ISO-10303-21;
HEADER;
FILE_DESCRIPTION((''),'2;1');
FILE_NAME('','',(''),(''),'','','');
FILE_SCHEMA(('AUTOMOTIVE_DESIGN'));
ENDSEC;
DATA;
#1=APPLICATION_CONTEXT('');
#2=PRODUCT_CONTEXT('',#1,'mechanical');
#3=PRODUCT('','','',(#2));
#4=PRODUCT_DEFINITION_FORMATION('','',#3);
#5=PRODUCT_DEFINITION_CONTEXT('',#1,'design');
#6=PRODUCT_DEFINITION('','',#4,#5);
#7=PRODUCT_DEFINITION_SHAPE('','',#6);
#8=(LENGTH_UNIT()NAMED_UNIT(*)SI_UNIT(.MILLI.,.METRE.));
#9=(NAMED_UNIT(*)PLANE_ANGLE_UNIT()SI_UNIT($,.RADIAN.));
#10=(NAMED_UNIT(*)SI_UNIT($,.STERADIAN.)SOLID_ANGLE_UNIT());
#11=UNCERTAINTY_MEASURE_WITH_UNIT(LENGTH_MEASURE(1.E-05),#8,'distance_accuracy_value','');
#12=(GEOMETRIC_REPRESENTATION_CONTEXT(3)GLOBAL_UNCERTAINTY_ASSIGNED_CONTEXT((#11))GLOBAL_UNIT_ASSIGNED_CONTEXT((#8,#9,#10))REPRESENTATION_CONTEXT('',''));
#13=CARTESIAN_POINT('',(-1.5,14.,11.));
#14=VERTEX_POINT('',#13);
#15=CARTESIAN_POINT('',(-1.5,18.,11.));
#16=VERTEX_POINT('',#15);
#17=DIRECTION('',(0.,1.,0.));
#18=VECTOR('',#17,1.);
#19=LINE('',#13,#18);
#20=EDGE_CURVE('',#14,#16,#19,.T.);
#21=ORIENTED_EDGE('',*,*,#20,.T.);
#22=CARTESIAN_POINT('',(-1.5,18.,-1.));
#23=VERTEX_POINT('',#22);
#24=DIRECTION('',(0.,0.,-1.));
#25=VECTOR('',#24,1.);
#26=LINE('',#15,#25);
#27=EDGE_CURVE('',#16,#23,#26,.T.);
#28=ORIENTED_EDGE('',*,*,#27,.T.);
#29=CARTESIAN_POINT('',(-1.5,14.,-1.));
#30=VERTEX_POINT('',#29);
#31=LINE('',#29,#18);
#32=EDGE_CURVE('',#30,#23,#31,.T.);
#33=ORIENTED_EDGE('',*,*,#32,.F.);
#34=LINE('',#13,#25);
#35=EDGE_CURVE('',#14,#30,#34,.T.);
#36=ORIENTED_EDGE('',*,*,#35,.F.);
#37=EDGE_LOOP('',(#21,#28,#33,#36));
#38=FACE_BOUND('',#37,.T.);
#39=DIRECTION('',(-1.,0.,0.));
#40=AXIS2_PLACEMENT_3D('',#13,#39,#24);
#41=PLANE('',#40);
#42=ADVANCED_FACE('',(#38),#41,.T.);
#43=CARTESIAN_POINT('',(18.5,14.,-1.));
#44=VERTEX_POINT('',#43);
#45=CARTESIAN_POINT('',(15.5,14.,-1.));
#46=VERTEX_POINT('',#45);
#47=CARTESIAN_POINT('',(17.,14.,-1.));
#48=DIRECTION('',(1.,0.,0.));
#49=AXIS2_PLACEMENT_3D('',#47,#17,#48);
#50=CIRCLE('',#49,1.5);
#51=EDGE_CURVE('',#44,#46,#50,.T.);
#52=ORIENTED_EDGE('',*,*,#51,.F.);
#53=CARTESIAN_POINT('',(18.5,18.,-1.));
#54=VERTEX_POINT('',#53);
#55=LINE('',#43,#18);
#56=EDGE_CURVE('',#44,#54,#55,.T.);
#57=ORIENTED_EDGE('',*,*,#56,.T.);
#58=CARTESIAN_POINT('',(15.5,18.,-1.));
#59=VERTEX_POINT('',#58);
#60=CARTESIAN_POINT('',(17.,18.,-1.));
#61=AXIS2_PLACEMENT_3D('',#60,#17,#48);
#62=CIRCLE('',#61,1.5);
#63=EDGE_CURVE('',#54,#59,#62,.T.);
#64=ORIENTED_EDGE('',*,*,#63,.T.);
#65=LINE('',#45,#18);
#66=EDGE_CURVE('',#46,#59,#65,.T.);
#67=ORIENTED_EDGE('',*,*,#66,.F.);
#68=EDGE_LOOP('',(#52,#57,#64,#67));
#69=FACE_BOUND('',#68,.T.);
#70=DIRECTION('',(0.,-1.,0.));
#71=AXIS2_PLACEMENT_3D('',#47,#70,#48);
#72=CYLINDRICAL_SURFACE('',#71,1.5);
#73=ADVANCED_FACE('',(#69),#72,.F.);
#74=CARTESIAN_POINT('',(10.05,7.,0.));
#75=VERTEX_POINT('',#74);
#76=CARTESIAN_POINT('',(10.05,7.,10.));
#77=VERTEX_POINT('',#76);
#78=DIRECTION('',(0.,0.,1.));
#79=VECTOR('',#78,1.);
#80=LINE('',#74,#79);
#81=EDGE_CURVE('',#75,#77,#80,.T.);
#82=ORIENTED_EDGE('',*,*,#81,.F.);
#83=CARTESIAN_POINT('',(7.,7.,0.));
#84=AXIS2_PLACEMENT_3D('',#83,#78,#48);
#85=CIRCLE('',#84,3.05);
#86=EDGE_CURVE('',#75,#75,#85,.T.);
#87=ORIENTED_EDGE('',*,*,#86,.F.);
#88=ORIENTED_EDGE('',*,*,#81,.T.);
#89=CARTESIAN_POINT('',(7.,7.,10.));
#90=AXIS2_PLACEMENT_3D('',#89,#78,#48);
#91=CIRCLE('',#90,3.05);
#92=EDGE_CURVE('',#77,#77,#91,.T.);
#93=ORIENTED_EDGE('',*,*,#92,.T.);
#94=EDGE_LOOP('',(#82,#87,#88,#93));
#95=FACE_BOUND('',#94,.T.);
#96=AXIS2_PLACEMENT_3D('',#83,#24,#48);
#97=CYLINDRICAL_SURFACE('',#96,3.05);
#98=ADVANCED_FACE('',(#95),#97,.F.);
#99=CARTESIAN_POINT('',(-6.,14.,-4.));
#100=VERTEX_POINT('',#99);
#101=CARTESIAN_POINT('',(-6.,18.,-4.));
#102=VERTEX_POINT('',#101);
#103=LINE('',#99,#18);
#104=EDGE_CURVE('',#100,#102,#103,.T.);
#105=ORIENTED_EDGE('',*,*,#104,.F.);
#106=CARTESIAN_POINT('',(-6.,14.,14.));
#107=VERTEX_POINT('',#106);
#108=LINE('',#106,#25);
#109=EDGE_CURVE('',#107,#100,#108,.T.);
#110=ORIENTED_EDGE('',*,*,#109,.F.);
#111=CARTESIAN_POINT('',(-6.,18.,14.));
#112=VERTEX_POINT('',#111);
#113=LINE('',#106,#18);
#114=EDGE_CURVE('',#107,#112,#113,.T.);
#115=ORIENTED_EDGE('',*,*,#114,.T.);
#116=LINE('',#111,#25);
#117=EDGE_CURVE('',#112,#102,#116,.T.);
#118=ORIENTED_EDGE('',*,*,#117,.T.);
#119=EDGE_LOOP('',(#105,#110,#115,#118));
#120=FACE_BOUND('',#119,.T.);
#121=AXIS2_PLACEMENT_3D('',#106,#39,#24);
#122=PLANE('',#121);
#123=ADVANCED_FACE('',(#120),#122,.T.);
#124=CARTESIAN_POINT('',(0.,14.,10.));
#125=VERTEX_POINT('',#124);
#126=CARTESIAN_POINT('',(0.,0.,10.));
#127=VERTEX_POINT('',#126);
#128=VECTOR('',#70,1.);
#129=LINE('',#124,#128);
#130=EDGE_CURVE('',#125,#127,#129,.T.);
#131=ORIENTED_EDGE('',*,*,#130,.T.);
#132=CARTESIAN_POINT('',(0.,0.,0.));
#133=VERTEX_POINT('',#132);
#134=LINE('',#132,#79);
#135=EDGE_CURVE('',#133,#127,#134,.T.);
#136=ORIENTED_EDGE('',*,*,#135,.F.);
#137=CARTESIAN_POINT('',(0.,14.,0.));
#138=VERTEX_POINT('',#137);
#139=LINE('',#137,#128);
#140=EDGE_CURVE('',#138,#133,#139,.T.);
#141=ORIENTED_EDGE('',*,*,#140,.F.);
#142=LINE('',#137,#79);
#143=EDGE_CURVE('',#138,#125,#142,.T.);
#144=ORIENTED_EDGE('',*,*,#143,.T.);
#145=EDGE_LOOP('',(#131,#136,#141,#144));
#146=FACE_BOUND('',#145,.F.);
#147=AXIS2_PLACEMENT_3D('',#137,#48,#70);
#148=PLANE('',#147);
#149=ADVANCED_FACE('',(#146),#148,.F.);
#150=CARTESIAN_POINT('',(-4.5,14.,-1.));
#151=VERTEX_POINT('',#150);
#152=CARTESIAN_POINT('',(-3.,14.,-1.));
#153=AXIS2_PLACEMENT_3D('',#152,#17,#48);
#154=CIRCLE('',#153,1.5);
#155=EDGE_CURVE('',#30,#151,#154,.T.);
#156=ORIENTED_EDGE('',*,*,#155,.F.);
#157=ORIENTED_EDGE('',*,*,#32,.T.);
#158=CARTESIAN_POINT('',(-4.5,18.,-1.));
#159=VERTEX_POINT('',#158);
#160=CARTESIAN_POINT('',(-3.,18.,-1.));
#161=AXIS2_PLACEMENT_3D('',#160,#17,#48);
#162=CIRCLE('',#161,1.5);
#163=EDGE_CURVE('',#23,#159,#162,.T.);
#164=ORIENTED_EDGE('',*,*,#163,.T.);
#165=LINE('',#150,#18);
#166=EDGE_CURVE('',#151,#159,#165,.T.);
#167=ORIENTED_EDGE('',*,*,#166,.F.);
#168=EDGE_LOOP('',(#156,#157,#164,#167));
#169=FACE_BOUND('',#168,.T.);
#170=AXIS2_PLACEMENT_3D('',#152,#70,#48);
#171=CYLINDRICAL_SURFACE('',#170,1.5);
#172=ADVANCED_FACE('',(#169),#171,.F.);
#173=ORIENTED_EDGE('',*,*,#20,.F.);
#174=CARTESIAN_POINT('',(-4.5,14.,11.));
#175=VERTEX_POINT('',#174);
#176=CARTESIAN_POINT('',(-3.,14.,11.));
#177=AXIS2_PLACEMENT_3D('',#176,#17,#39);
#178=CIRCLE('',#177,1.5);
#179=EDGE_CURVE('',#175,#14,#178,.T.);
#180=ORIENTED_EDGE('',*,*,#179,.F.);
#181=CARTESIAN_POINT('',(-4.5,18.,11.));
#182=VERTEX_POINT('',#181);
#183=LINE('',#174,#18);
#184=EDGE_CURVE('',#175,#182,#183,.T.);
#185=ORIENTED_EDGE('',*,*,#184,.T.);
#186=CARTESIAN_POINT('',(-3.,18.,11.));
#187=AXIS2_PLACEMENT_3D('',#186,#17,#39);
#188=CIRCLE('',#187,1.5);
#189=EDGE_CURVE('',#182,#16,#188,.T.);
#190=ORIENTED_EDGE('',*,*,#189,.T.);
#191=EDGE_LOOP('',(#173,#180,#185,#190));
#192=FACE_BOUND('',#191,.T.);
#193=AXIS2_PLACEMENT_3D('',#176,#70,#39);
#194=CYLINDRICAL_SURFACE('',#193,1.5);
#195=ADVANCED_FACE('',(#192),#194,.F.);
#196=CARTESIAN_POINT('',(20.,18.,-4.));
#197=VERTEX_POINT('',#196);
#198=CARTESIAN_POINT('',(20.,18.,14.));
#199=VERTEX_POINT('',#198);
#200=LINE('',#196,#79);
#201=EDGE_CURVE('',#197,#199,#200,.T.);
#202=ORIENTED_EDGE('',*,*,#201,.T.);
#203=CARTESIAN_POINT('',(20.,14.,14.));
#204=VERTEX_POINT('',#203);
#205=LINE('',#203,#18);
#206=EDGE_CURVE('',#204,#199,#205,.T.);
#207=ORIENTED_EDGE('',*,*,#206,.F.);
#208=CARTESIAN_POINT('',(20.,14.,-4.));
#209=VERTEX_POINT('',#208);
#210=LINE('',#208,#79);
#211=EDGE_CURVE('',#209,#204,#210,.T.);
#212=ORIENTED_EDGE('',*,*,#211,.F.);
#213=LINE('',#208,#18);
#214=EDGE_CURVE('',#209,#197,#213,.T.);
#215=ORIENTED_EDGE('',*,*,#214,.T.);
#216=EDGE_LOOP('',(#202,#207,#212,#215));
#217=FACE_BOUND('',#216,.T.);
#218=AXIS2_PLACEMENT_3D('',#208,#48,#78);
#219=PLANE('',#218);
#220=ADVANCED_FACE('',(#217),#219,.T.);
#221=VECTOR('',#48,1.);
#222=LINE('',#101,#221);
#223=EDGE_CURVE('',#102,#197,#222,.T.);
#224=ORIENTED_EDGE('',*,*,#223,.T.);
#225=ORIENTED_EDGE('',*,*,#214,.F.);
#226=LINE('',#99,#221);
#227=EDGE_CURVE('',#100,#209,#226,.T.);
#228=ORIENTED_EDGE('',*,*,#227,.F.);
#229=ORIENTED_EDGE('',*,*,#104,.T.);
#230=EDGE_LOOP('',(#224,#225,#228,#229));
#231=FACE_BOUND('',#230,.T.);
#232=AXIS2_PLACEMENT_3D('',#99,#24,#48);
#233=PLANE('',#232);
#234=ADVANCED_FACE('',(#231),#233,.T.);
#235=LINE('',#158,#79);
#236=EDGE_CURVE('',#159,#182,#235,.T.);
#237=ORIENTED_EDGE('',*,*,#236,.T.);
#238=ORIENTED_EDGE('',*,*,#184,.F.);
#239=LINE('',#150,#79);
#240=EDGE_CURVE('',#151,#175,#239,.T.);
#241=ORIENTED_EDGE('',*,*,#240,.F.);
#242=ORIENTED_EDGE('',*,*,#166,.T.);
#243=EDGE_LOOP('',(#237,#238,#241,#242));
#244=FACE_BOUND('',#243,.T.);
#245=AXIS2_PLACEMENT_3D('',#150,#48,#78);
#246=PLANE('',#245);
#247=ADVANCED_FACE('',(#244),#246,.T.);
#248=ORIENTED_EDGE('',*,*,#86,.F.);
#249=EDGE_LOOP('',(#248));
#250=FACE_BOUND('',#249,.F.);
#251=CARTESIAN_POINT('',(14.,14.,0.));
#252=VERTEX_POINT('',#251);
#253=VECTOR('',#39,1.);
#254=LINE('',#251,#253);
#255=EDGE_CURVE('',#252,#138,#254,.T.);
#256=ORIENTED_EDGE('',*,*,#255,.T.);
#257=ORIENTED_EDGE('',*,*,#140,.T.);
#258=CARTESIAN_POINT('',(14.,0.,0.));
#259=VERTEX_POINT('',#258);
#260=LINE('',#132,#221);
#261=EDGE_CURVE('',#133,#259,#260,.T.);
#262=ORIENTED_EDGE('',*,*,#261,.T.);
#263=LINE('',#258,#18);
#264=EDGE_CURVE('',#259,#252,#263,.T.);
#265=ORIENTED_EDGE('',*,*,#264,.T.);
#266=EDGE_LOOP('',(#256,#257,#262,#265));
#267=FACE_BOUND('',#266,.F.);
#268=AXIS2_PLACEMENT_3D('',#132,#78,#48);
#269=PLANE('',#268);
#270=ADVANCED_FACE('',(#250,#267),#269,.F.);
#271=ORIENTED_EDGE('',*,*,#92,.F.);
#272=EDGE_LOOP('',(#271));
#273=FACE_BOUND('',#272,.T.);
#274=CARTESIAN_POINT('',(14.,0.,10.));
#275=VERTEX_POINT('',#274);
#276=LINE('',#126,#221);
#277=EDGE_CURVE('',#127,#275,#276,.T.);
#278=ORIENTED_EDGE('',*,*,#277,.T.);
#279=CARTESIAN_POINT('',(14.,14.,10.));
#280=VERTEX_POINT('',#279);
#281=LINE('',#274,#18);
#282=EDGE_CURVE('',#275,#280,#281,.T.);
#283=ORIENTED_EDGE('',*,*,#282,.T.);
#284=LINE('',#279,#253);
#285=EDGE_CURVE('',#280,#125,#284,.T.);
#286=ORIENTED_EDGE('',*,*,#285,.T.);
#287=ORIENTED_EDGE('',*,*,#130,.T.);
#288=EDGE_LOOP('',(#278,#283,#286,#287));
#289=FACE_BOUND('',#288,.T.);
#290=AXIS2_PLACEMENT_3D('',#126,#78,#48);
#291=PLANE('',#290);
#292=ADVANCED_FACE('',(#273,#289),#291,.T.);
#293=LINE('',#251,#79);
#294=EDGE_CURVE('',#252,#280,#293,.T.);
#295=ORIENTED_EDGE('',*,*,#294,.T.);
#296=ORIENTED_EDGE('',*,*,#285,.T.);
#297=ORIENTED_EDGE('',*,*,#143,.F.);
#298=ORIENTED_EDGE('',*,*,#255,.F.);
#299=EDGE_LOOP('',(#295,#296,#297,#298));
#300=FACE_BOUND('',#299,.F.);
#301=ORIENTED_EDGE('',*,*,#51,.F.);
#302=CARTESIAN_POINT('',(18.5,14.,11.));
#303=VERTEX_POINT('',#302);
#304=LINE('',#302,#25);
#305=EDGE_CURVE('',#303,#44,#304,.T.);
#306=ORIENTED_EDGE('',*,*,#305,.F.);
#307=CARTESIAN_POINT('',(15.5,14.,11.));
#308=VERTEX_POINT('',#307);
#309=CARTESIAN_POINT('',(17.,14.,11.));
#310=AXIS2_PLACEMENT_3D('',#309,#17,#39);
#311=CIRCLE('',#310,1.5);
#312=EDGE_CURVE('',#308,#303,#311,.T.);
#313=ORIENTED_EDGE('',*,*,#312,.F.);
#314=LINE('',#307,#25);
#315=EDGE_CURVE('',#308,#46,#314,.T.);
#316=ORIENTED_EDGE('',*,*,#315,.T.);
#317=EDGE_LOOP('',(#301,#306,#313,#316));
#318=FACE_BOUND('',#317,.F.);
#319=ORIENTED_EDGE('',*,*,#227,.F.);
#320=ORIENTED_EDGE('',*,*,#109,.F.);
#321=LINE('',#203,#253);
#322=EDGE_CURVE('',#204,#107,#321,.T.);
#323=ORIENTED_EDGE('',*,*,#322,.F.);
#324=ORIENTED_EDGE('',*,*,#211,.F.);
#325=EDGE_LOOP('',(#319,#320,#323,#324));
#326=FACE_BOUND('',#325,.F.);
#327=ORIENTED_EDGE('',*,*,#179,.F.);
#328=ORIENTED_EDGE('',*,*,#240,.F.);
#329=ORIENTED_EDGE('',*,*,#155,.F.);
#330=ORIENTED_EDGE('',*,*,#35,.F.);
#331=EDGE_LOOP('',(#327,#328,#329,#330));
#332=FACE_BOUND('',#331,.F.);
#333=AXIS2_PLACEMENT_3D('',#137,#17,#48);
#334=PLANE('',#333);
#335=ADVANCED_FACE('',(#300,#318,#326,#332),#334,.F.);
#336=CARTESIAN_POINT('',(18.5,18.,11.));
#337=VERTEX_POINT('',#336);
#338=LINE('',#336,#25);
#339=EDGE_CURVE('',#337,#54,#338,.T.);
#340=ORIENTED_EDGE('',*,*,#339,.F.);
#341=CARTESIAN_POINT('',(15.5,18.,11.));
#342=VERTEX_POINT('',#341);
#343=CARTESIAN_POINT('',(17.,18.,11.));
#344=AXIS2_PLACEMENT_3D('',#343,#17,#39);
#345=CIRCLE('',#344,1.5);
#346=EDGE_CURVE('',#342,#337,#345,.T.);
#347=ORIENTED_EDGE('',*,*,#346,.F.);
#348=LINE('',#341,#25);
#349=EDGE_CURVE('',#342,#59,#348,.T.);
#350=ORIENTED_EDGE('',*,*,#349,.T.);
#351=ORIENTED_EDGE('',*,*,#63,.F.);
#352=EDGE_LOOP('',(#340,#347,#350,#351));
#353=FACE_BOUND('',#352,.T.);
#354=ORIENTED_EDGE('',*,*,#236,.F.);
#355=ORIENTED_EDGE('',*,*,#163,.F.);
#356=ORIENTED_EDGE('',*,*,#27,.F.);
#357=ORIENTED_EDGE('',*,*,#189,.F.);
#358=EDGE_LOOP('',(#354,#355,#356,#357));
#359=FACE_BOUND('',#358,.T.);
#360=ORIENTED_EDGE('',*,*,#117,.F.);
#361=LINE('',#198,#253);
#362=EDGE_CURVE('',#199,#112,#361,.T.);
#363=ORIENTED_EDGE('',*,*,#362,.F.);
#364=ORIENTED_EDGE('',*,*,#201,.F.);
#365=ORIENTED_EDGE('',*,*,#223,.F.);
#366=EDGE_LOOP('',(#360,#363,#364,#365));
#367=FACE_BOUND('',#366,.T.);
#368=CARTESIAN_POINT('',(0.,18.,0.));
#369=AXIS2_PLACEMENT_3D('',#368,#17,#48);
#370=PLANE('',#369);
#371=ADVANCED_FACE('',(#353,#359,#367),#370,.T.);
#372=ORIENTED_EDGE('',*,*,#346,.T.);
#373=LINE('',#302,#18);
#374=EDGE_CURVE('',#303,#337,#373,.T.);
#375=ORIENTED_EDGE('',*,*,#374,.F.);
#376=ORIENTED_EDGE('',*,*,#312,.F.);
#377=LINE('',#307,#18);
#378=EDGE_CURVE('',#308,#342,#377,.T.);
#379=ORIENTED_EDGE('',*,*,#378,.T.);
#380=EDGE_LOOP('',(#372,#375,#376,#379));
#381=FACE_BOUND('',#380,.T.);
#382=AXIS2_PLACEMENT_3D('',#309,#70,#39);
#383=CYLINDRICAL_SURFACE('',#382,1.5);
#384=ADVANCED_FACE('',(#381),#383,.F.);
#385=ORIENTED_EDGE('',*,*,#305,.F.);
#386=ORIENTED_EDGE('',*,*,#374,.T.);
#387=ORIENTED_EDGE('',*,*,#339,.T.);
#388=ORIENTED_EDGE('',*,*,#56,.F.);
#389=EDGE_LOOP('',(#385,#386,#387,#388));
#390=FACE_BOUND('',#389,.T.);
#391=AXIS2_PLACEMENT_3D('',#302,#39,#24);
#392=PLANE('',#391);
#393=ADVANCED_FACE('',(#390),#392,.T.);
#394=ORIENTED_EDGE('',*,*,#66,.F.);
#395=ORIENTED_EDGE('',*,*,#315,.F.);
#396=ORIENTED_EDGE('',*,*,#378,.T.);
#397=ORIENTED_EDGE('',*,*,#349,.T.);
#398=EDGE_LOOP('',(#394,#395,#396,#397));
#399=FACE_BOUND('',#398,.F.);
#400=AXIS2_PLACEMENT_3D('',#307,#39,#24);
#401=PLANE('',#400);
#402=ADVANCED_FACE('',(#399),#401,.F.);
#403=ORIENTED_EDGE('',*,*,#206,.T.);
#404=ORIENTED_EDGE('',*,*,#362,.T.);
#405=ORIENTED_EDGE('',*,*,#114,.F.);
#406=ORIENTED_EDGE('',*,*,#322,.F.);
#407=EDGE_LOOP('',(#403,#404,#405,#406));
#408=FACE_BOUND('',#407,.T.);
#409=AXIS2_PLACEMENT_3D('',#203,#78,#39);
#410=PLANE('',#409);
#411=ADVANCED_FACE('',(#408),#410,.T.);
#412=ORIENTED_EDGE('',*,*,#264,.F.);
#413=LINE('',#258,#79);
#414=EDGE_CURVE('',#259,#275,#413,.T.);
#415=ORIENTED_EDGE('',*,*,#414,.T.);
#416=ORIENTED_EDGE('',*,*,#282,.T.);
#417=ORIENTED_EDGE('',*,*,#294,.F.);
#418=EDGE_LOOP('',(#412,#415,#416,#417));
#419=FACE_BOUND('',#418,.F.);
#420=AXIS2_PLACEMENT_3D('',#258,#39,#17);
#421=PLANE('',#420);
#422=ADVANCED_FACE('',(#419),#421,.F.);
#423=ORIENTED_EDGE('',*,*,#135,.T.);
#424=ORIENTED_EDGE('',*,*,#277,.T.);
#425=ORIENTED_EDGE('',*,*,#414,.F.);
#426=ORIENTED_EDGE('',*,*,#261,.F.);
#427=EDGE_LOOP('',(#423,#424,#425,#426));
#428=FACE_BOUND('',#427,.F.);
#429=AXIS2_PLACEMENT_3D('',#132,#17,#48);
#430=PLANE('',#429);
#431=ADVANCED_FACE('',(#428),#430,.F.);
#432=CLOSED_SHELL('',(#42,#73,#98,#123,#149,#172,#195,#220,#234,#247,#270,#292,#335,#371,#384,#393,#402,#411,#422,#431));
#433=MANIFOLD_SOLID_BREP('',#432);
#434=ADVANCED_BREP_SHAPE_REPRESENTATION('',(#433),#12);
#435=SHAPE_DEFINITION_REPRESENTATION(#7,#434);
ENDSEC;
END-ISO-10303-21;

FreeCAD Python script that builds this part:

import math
import FreeCAD as App
import Part
import Sketcher
Q = App.Units.Quantity


def add_polygon(sketch, points):
    """Adds a closed chain of lines whose ends are joined by coincident constraints."""
    first, n = sketch.GeometryCount, len(points)
    for a, b in zip(points, points[1:] + points[:1]):
        sketch.addGeometry(Part.LineSegment(App.Vector(*a, 0), App.Vector(*b, 0)), False)
    for i in range(n):
        sketch.addConstraint(Sketcher.Constraint("Coincident", first + i, 2, first + (i + 1) % n, 1))

doc = App.newDocument("Part")
params = doc.addObject("Spreadsheet::Sheet", "Params")
for row, (alias, value) in enumerate([
    ("sketch1_diameter", "6.1 mm"),
    ("sketch1_width", "14 mm"),
    ("pad1_length", "10 mm"),
    ("sketch2_radius", "1.5 mm"),
    ("sketch2_width", "26 mm"),
    ("sketch2_height", "18 mm"),
    ("pad2_length", "4 mm"),
], start=1):
    params.set(f"A{row}", alias)
    params.set(f"B{row}", "=" + value)
    params.setAlias(f"B{row}", alias)

body = doc.addObject("PartDesign::Body", "Body")

# Sketch on XY plane
sketch1 = body.newObject("Sketcher::SketchObject", "Sketch")
sketch1.AttachmentSupport = (doc.getObject("XY_Plane"), [""])
sketch1.MapMode = "FlatFace"
add_polygon(sketch1, [(0, 14), (0, 0), (14, 0), (14, 14)])  # lines 0-3
sketch1.addGeometry(Part.Circle(App.Vector(7, 7, 0), App.Vector(0, 0, 1), 3), False)  # 4
sketch1.addConstraint([
    Sketcher.Constraint("Vertical", 0),
    Sketcher.Constraint("Horizontal", 1),
    Sketcher.Constraint("Vertical", 2),
    Sketcher.Constraint("Horizontal", 3),
    Sketcher.Constraint("Coincident", 0, 2, -1, 1),
    Sketcher.Constraint("Equal", 3, 0),
    Sketcher.Constraint("Diameter", 4, Q("6.1 mm")),
    Sketcher.Constraint("DistanceX", 1, 1, 1, 2, Q("14 mm")),
    Sketcher.Constraint("DistanceX", -1, 1, 4, 3, Q("7 mm")),
    Sketcher.Constraint("DistanceY", -1, 1, 4, 3, Q("7 mm")),
])
sketch1.setExpression("Constraints[10]", "Params.sketch1_diameter")
sketch1.setExpression("Constraints[11]", "Params.sketch1_width")
pad1 = body.newObject("PartDesign::Pad", "Pad")
pad1.Profile = sketch1
pad1.setExpression("Length", "Params.pad1_length")

# Sketch on XZ plane
sketch2 = body.newObject("Sketcher::SketchObject", "Sketch001")
sketch2.AttachmentSupport = (doc.getObject("XZ_Plane"), [""])
sketch2.MapMode = "FlatFace"
sketch2.AttachmentOffset = App.Placement(App.Vector(0, 0, -14), App.Rotation())
add_polygon(sketch2, [(20, -4), (-6, -4), (-6, 14), (20, 14)])  # lines 0-3
sketch2.addGeometry(Part.ArcOfCircle(Part.Circle(App.Vector(-3, -1, 0), App.Vector(0, 0, 1), 1.5), math.radians(180), math.radians(360)), False)  # 4
sketch2.addGeometry(Part.LineSegment(App.Vector(-1.5, -1, 0), App.Vector(-1.5, 11, 0)), False)  # 5
sketch2.addGeometry(Part.ArcOfCircle(Part.Circle(App.Vector(-3, 11, 0), App.Vector(0, 0, 1), 1.5), math.radians(0), math.radians(180)), False)  # 6
sketch2.addGeometry(Part.LineSegment(App.Vector(-4.5, 11, 0), App.Vector(-4.5, -1, 0)), False)  # 7
sketch2.addGeometry(Part.ArcOfCircle(Part.Circle(App.Vector(17, -1, 0), App.Vector(0, 0, 1), 1.5), math.radians(180), math.radians(360)), False)  # 8
sketch2.addGeometry(Part.LineSegment(App.Vector(18.5, -1, 0), App.Vector(18.5, 11, 0)), False)  # 9
sketch2.addGeometry(Part.ArcOfCircle(Part.Circle(App.Vector(17, 11, 0), App.Vector(0, 0, 1), 1.5), math.radians(0), math.radians(180)), False)  # 10
sketch2.addGeometry(Part.LineSegment(App.Vector(15.5, 11, 0), App.Vector(15.5, -1, 0)), False)  # 11
sketch2.addConstraint([
    Sketcher.Constraint("Tangent", 4, 2, 5, 1),
    Sketcher.Constraint("Tangent", 5, 2, 6, 1),
    Sketcher.Constraint("Tangent", 6, 2, 7, 1),
    Sketcher.Constraint("Tangent", 7, 2, 4, 1),
    Sketcher.Constraint("Tangent", 8, 2, 9, 1),
    Sketcher.Constraint("Tangent", 9, 2, 10, 1),
    Sketcher.Constraint("Tangent", 10, 2, 11, 1),
    Sketcher.Constraint("Tangent", 11, 2, 8, 1),
    Sketcher.Constraint("Horizontal", 0),
    Sketcher.Constraint("Vertical", 1),
    Sketcher.Constraint("Horizontal", 2),
    Sketcher.Constraint("Vertical", 3),
    Sketcher.Constraint("Vertical", 5),
    Sketcher.Constraint("Vertical", 7),
    Sketcher.Constraint("Vertical", 9),
    Sketcher.Constraint("Vertical", 11),
    Sketcher.Constraint("Equal", 6, 8),
    Sketcher.Constraint("Horizontal", 4, 3, 8, 3),
    Sketcher.Constraint("Horizontal", 6, 3, 10, 3),
    Sketcher.Constraint("Radius", 4, Q("1.5 mm")),
    Sketcher.Constraint("DistanceX", 4, 3, -1, 1, Q("3 mm")),
    Sketcher.Constraint("DistanceX", 0, 2, -1, 1, Q("6 mm")),
    Sketcher.Constraint("DistanceY", 0, 2, -1, 1, Q("4 mm")),
    Sketcher.Constraint("DistanceY", 0, 2, 4, 3, Q("3 mm")),
    Sketcher.Constraint("DistanceY", 6, 3, 1, 2, Q("3 mm")),
    Sketcher.Constraint("DistanceX", 10, 3, 2, 2, Q("3 mm")),
    Sketcher.Constraint("DistanceX", 0, 2, 0, 1, Q("26 mm")),
    Sketcher.Constraint("DistanceY", 1, 1, 1, 2, Q("18 mm")),
])
sketch2.setExpression("Constraints[23]", "Params.sketch2_radius")
sketch2.setExpression("Constraints[30]", "Params.sketch2_width")
sketch2.setExpression("Constraints[31]", "Params.sketch2_height")
pad2 = body.newObject("PartDesign::Pad", "Pad001")
pad2.Profile = sketch2
pad2.setExpression("Length", "Params.pad2_length")
pad2.Reversed = True

doc.recompute()
